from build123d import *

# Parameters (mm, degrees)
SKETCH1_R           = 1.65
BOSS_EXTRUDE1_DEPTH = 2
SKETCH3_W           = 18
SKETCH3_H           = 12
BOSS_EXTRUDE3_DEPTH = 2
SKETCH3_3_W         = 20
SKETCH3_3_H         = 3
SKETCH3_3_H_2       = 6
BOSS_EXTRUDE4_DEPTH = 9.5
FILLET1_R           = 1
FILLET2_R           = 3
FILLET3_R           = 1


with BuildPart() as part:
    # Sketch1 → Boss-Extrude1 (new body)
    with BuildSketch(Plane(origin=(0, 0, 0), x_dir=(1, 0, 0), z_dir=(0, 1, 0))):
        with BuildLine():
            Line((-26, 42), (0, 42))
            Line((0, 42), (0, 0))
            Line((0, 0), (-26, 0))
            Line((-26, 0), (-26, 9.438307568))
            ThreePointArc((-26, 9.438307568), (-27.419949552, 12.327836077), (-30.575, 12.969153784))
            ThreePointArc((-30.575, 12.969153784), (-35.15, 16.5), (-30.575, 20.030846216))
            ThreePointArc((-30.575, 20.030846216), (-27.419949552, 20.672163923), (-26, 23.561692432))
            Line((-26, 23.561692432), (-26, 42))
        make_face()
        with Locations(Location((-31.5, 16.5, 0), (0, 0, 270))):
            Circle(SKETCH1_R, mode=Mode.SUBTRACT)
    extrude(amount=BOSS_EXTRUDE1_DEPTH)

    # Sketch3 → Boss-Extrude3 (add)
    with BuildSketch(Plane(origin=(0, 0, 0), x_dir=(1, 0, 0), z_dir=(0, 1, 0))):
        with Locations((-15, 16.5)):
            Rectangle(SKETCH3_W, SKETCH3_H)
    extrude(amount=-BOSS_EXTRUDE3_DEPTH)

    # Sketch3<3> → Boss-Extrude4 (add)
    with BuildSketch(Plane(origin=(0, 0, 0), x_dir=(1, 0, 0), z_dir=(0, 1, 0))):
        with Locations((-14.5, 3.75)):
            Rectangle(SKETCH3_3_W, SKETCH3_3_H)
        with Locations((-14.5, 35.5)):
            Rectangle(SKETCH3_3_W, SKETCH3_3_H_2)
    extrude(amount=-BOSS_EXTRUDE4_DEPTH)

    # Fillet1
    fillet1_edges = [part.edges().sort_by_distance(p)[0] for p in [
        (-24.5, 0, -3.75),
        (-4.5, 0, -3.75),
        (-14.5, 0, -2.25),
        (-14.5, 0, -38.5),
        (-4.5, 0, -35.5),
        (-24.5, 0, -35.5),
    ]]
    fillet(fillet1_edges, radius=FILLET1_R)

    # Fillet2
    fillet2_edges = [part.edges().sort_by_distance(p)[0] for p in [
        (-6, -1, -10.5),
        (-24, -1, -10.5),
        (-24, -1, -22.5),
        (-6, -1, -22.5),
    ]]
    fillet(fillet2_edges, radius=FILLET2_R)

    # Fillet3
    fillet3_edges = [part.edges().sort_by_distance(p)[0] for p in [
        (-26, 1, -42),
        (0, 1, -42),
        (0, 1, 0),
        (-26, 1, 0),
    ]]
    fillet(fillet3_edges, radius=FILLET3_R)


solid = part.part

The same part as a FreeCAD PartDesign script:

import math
import FreeCAD as App
import Part
import Sketcher
Q = App.Units.Quantity


def edges_at(feature, points):
    """Names of the edges that pass closest to the given points."""
    edges = feature.Shape.Edges
    near = lambda p: min(range(len(edges)), key=lambda i: edges[i].distToShape(Part.Vertex(*p))[0])
    return sorted({f"Edge{near(p) + 1}" for p in points})

doc = App.newDocument("Part")
body = doc.addObject("PartDesign::Body", "Body")

# Sketch on XZ plane
sketch1 = doc.addObject("Sketcher::SketchObject", "Sketch")
body.addObject(sketch1)
sketch1.AttachmentSupport = (doc.XZ_Plane, [""])
sketch1.MapMode = "FlatFace"
sketch1.addGeometry([
    Part.LineSegment(App.Vector(0, -42, 0), App.Vector(-26, -42, 0)),  # 0
    Part.LineSegment(App.Vector(-26, -42, 0), App.Vector(-26, -23.6, 0)),  # 1
    Part.ArcOfCircle(Part.Circle(App.Vector(-29.6, -23.6, 0), App.Vector(0, 0, 1), 3.6), math.radians(0), math.radians(105)),  # 2
    Part.ArcOfCircle(Part.Circle(App.Vector(-31.5, -16.5, 0), App.Vector(0, 0, 1), 3.6), math.radians(75), math.radians(285)),  # 3
    Part.ArcOfCircle(Part.Circle(App.Vector(-29.6, -9.4, 0), App.Vector(0, 0, 1), 3.6), math.radians(-105), math.radians(0)),  # 4
    Part.LineSegment(App.Vector(-26, -9.4, 0), App.Vector(-26, 0, 0)),  # 5
    Part.LineSegment(App.Vector(-26, 0, 0), App.Vector(0, 0, 0)),  # 6
    Part.LineSegment(App.Vector(0, 0, 0), App.Vector(0, -42, 0)),  # 7
    Part.Circle(App.Vector(-31.5, -16.5, 0), App.Vector(0, 0, 1), 1.6),  # 8
], False)
sketch1.addConstraint([
    Sketcher.Constraint("Coincident", 0, 2, 1, 1),
    Sketcher.Constraint("Tangent", 1, 2, 2, 1),
    Sketcher.Constraint("Tangent", 2, 2, 3, 2),
    Sketcher.Constraint("Tangent", 3, 1, 4, 1),
    Sketcher.Constraint("Tangent", 4, 2, 5, 1),
    Sketcher.Constraint("Coincident", 5, 2, 6, 1),
    Sketcher.Constraint("Coincident", 6, 2, 7, 1),
    Sketcher.Constraint("Coincident", 7, 2, 0, 1),
    Sketcher.Constraint("Horizontal", 0),
    Sketcher.Constraint("Vertical", 1),
    Sketcher.Constraint("Vertical", 5),
    Sketcher.Constraint("Horizontal", 6),
    Sketcher.Constraint("Vertical", 7),
    Sketcher.Constraint("Coincident", 6, 2, -1, 1),
    Sketcher.Constraint("Coincident", 8, 3, 3, 3),
    Sketcher.Constraint("Equal", 2, 3),
    Sketcher.Constraint("Equal", 3, 4),
    Sketcher.Constraint("Vertical", 2, 3, 4, 3),
    Sketcher.Constraint("Diameter", 8, Q("3.3 mm")),
    Sketcher.Constraint("DistanceX", 0, 2, 0, 1, Q("26 mm")),
    Sketcher.Constraint("DistanceY", 7, 2, 7, 1, Q("42 mm")),
    Sketcher.Constraint("Radius", 2, Q("3.65 mm")),
    Sketcher.Constraint("DistanceX", 3, 3, -1, 1, Q("31.5 mm")),
    Sketcher.Constraint("DistanceY", 3, 3, -1, 1, Q("16.5 mm")),
])
pad1 = doc.addObject("PartDesign::Pad", "Pad")
body.addObject(pad1)
pad1.Profile = sketch1
pad1.Length = 2
pad1.Reversed = True

# Sketch on XZ plane
sketch2 = doc.addObject("Sketcher::SketchObject", "Sketch001")
body.addObject(sketch2)
sketch2.AttachmentSupport = (doc.XZ_Plane, [""])
sketch2.MapMode = "FlatFace"
sketch2.addGeometry([
    Part.LineSegment(App.Vector(-24, -22, 0), App.Vector(-24, -10, 0)),
    Part.LineSegment(App.Vector(-24, -10, 0), App.Vector(-6, -10, 0)),
    Part.LineSegment(App.Vector(-6, -10, 0), App.Vector(-6, -22, 0)),
    Part.LineSegment(App.Vector(-6, -22, 0), App.Vector(-24, -22, 0)),
], False)
sketch2.addConstraint([
    Sketcher.Constraint("Coincident", 0, 2, 1, 1),
    Sketcher.Constraint("Coincident", 1, 2, 2, 1),
    Sketcher.Constraint("Coincident", 2, 2, 3, 1),
    Sketcher.Constraint("Coincident", 3, 2, 0, 1),
    Sketcher.Constraint("Vertical", 0),
    Sketcher.Constraint("Horizontal", 1),
    Sketcher.Constraint("Vertical", 2),
    Sketcher.Constraint("Horizontal", 3),
    Sketcher.Constraint("DistanceX", 1, 1, 1, 2, Q("18 mm")),
    Sketcher.Constraint("DistanceY", 0, 1, 0, 2, Q("12 mm")),
    Sketcher.Constraint("DistanceX", 0, 2, -1, 1, Q("24 mm")),
    Sketcher.Constraint("DistanceY", 0, 2, -1, 1, Q("10.5 mm")),
])
pad2 = doc.addObject("PartDesign::Pad", "Pad001")
body.addObject(pad2)
pad2.Profile = sketch2
pad2.Length = 2

# Sketch on XZ plane
sketch3 = doc.addObject("Sketcher::SketchObject", "Sketch002")
body.addObject(sketch3)
sketch3.AttachmentSupport = (doc.XZ_Plane, [""])
sketch3.MapMode = "FlatFace"
sketch3.addGeometry([
    Part.LineSegment(App.Vector(-24.5, -5.2, 0), App.Vector(-24.5, -2.2, 0)),  # 0
    Part.LineSegment(App.Vector(-24.5, -2.2, 0), App.Vector(-4.5, -2.2, 0)),  # 1
    Part.LineSegment(App.Vector(-4.5, -2.2, 0), App.Vector(-4.5, -5.2, 0)),  # 2
    Part.LineSegment(App.Vector(-4.5, -5.2, 0), App.Vector(-24.5, -5.2, 0)),  # 3
    Part.LineSegment(App.Vector(-24.5, -38.5, 0), App.Vector(-24.5, -32.5, 0)),  # 4
    Part.LineSegment(App.Vector(-24.5, -32.5, 0), App.Vector(-4.5, -32.5, 0)),  # 5
    Part.LineSegment(App.Vector(-4.5, -32.5, 0), App.Vector(-4.5, -38.5, 0)),  # 6
    Part.LineSegment(App.Vector(-4.5, -38.5, 0), App.Vector(-24.5, -38.5, 0)),  # 7
], False)
sketch3.addConstraint([
    Sketcher.Constraint("Coincident", 0, 2, 1, 1),
    Sketcher.Constraint("Coincident", 1, 2, 2, 1),
    Sketcher.Constraint("Coincident", 2, 2, 3, 1),
    Sketcher.Constraint("Coincident", 3, 2, 0, 1),
    Sketcher.Constraint("Coincident", 4, 2, 5, 1),
    Sketcher.Constraint("Coincident", 5, 2, 6, 1),
    Sketcher.Constraint("Coincident", 6, 2, 7, 1),
    Sketcher.Constraint("Coincident", 7, 2, 4, 1),
    Sketcher.Constraint("Vertical", 0),
    Sketcher.Constraint("Horizontal", 1),
    Sketcher.Constraint("Vertical", 2),
    Sketcher.Constraint("Horizontal", 3),
    Sketcher.Constraint("Vertical", 4),
    Sketcher.Constraint("Horizontal", 5),
    Sketcher.Constraint("Vertical", 6),
    Sketcher.Constraint("Horizontal", 7),
    Sketcher.Constraint("Vertical", 3, 2, 4, 2),
    Sketcher.Constraint("Vertical", 2, 2, 5, 2),
    Sketcher.Constraint("DistanceX", 1, 1, 1, 2, Q("20 mm")),
    Sketcher.Constraint("DistanceY", 0, 1, 0, 2, Q("3 mm")),
    Sketcher.Constraint("DistanceY", 4, 1, 4, 2, Q("6 mm")),
    Sketcher.Constraint("DistanceX", 0, 2, -1, 1, Q("24.5 mm")),
    Sketcher.Constraint("DistanceY", 4, 2, -1, 1, Q("32.5 mm")),
    Sketcher.Constraint("DistanceY", 0, 2, -1, 1, Q("2.25 mm")),
])
pad3 = doc.addObject("PartDesign::Pad", "Pad002")
body.addObject(pad3)
pad3.Profile = sketch3
pad3.Length = 9.5
doc.recompute()

fillet = doc.addObject("PartDesign::Fillet", "Fillet")
body.addObject(fillet)
fillet.Base = (pad3, edges_at(pad3, [
    (-24.5, 0, -3.75),
    (-4.5, 0, -3.75),
    (-14.5, 0, -2.25),
    (-14.5, 0, -38.5),
    (-4.5, 0, -35.5),
    (-24.5, 0, -35.5),
]))
fillet.Radius = 1
doc.recompute()

fillet2 = doc.addObject("PartDesign::Fillet", "Fillet001")
body.addObject(fillet2)
fillet2.Base = (fillet, edges_at(fillet, [
    (-6, -1, -10.5),
    (-24, -1, -10.5),
    (-24, -1, -22.5),
    (-6, -1, -22.5),
]))
fillet2.Radius = 3
doc.recompute()

fillet3 = doc.addObject("PartDesign::Fillet", "Fillet002")
body.addObject(fillet3)
fillet3.Base = (fillet2, edges_at(fillet2, [
    (-26, 1, -42),
    (0, 1, -42),
    (0, 1, 0),
    (-26, 1, 0),
]))
fillet3.Radius = 1

doc.recompute()
